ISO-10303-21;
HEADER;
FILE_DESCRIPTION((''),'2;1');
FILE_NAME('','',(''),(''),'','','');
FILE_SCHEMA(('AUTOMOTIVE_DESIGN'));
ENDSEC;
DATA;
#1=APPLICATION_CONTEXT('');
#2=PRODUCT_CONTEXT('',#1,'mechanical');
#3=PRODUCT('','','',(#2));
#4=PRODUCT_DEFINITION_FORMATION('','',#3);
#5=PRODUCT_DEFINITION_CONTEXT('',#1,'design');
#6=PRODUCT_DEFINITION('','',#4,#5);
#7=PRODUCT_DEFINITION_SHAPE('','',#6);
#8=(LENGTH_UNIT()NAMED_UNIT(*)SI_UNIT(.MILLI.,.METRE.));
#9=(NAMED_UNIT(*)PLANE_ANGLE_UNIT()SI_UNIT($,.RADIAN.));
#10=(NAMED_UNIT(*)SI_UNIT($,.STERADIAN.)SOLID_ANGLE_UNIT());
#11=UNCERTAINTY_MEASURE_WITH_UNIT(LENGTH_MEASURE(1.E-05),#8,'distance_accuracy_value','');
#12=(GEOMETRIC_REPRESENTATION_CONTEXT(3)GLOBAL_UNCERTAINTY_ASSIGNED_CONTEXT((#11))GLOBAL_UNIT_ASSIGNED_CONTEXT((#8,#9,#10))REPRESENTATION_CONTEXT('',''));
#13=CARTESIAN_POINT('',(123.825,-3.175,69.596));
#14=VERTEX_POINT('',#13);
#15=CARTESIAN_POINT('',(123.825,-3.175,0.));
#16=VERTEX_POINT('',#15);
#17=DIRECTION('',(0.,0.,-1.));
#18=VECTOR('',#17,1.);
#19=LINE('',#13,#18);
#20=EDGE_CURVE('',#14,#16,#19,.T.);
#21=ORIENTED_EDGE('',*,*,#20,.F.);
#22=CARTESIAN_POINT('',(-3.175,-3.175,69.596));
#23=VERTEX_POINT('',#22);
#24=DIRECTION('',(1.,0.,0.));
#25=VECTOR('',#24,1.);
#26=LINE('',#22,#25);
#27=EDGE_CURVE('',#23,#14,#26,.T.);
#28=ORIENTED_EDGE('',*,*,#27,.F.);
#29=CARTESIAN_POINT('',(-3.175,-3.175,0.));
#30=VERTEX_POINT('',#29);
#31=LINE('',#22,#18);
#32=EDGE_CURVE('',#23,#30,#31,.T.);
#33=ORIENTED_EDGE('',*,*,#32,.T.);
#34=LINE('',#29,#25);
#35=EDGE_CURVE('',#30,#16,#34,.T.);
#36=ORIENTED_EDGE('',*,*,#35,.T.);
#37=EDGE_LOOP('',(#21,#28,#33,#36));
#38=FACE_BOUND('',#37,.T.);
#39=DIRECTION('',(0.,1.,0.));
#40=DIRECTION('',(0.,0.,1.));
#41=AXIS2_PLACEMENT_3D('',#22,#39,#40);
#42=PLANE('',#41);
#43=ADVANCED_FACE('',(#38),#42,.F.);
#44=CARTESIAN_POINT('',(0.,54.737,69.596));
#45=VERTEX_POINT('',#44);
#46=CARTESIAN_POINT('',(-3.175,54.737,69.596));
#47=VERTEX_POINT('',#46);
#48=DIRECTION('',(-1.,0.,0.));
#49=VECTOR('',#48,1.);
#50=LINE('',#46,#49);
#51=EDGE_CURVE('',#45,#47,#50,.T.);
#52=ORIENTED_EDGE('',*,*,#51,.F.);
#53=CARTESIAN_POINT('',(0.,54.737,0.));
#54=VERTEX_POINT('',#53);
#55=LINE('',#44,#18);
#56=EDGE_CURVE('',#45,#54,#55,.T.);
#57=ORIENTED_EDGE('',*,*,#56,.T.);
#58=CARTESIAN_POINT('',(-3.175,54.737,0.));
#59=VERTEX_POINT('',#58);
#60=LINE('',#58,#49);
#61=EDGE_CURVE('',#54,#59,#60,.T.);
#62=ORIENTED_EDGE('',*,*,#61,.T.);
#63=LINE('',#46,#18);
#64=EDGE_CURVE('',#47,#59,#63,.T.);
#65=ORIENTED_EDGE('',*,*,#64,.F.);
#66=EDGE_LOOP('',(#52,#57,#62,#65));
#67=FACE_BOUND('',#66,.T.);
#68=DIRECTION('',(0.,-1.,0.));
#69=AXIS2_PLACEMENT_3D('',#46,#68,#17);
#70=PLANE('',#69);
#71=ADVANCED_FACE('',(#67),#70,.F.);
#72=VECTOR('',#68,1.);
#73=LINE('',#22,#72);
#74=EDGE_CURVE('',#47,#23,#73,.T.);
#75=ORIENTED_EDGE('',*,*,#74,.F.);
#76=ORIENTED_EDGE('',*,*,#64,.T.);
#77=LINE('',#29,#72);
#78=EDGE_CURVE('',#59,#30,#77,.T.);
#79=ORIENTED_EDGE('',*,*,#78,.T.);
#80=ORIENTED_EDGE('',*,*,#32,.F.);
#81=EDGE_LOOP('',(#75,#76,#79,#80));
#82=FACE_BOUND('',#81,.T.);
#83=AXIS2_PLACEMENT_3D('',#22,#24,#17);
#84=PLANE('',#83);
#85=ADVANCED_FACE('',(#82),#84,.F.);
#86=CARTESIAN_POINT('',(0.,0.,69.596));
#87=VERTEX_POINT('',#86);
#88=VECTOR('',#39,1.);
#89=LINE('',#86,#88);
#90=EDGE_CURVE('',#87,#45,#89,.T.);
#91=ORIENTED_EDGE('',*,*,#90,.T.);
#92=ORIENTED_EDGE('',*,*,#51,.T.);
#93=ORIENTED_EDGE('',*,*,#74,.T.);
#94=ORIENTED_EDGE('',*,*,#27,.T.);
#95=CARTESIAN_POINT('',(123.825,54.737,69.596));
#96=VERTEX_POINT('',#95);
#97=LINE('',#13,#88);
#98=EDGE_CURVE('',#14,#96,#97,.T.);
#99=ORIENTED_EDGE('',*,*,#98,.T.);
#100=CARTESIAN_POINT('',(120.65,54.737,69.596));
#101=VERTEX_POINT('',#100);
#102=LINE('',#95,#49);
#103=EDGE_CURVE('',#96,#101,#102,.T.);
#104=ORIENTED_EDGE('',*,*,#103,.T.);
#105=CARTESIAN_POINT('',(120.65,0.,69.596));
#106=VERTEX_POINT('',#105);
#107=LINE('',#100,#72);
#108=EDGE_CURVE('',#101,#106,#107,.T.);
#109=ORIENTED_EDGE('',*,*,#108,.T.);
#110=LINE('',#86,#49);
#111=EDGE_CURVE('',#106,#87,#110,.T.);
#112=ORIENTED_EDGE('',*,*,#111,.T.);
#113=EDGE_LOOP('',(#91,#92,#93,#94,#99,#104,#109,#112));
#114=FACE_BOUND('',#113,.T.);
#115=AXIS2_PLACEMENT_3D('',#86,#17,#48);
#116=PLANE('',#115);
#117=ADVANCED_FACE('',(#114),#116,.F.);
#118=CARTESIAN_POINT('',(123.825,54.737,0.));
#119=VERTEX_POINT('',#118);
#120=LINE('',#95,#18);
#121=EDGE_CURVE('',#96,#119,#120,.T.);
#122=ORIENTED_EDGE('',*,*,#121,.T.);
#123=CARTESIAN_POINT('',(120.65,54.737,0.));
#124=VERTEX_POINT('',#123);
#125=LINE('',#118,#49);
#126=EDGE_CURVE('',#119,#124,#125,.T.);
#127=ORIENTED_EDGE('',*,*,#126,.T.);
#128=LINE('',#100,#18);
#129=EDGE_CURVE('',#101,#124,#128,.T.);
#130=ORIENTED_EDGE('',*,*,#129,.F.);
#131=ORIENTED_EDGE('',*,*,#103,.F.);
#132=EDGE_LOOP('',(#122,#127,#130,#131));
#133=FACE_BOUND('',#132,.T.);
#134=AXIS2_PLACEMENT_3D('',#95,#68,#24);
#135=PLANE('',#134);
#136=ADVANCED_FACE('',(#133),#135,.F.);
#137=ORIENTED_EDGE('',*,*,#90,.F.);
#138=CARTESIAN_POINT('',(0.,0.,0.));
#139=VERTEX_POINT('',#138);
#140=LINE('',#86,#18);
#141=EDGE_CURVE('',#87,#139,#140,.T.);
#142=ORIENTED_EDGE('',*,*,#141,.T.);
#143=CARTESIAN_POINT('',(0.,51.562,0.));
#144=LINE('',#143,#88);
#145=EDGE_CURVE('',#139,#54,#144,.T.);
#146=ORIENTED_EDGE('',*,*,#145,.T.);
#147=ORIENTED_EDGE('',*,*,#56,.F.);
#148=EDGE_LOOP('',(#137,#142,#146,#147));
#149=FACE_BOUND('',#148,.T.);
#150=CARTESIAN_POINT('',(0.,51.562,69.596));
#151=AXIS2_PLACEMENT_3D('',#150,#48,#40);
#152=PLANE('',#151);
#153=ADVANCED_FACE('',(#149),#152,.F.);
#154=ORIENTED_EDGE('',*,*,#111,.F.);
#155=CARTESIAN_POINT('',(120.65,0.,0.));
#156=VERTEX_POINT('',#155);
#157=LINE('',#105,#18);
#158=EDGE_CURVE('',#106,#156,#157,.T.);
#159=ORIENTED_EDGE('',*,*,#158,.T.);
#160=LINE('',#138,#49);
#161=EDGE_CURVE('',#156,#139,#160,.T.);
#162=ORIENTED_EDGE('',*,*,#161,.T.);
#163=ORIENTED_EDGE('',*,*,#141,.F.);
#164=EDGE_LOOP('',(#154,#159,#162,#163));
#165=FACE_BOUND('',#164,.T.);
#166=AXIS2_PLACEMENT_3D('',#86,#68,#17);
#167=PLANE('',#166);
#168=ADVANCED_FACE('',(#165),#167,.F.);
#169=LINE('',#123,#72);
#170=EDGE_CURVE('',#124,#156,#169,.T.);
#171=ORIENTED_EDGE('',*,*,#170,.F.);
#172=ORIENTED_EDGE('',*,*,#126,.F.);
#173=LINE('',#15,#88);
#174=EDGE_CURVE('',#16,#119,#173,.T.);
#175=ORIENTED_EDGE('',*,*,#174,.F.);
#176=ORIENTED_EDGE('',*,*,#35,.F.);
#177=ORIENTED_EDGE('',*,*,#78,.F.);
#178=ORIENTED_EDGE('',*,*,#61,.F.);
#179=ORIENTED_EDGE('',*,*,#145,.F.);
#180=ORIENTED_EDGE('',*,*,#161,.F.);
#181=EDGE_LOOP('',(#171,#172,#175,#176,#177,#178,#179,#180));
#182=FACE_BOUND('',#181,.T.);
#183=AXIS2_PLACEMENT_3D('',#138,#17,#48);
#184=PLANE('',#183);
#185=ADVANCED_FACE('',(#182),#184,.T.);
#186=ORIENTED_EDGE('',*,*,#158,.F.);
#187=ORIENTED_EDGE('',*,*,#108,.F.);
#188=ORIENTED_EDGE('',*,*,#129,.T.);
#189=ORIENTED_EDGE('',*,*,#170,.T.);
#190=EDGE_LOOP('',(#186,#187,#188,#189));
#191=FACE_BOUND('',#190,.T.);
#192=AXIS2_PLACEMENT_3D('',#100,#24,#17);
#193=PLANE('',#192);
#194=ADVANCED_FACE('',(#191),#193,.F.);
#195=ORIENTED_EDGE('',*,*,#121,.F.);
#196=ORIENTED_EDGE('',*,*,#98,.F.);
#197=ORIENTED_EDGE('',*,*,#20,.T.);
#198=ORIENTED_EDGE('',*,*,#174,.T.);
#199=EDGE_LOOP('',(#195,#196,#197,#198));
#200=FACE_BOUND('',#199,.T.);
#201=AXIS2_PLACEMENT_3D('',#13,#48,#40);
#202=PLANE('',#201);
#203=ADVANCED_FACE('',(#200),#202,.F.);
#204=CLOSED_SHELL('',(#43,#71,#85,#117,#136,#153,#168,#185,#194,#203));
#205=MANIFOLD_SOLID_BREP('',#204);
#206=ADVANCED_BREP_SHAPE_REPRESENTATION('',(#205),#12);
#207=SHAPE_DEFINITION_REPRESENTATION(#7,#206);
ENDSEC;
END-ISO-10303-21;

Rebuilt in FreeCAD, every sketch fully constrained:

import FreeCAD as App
import Part
import Sketcher
from FreeCAD import Vector
Q = App.Units.Quantity


def add_polygon(sketch, points):
    """Adds a closed chain of lines whose ends are joined by coincident constraints."""
    first, n = sketch.GeometryCount, len(points)
    for a, b in zip(points, points[1:] + points[:1]):
        sketch.addGeometry(Part.LineSegment(App.Vector(*a, 0), App.Vector(*b, 0)), False)
    for i in range(n):
        sketch.addConstraint(Sketcher.Constraint("Coincident", first + i, 2, first + (i + 1) % n, 1))

doc = App.newDocument("Part")
body = doc.addObject("PartDesign::Body", "Body")

sketch1 = doc.addObject("Sketcher::SketchObject", "Sketch")
body.addObject(sketch1)
sketch1.AttachmentSupport = (doc.XY_Plane, [""])
sketch1.MapMode = "FlatFace"
add_polygon(sketch1, [(-3.2, 54.7), (-3.2, -3.2), (123.8, -3.2), (123.8, 54.7), (120.7, 54.7), (120.7, 0), (0, 0), (0, 54.7)])
sketch1.addConstraint(Sketcher.Constraint("Vertical", 0))
sketch1.addConstraint(Sketcher.Constraint("Horizontal", 1))
sketch1.addConstraint(Sketcher.Constraint("Vertical", 2))
sketch1.addConstraint(Sketcher.Constraint("Horizontal", 3))
sketch1.addConstraint(Sketcher.Constraint("Vertical", 4))
sketch1.addConstraint(Sketcher.Constraint("Horizontal", 5))
sketch1.addConstraint(Sketcher.Constraint("Vertical", 6))
sketch1.addConstraint(Sketcher.Constraint("Horizontal", 7))
sketch1.addConstraint(Sketcher.Constraint("Coincident", 5, 2, -1, 1))
sketch1.addConstraint(Sketcher.Constraint("Horizontal", 3, 2, 6, 2))
sketch1.addConstraint(Sketcher.Constraint("Equal", 3, 7))
sketch1.addConstraint(Sketcher.Constraint("DistanceX", 1, 1, 1, 2, Q("5 in")))
sketch1.addConstraint(Sketcher.Constraint("DistanceX", 5, 2, 5, 1, Q("4.75 in")))
sketch1.addConstraint(Sketcher.Constraint("DistanceY", 0, 2, 0, 1, Q("2.28 in")))
sketch1.addConstraint(Sketcher.Constraint("DistanceY", 4, 2, 4, 1, Q("2.155 in")))
pad1 = doc.addObject("PartDesign::Pad", "Pad")
body.addObject(pad1)
pad1.Profile = sketch1
pad1.Length = Q("2.74 in")

doc.recompute()
